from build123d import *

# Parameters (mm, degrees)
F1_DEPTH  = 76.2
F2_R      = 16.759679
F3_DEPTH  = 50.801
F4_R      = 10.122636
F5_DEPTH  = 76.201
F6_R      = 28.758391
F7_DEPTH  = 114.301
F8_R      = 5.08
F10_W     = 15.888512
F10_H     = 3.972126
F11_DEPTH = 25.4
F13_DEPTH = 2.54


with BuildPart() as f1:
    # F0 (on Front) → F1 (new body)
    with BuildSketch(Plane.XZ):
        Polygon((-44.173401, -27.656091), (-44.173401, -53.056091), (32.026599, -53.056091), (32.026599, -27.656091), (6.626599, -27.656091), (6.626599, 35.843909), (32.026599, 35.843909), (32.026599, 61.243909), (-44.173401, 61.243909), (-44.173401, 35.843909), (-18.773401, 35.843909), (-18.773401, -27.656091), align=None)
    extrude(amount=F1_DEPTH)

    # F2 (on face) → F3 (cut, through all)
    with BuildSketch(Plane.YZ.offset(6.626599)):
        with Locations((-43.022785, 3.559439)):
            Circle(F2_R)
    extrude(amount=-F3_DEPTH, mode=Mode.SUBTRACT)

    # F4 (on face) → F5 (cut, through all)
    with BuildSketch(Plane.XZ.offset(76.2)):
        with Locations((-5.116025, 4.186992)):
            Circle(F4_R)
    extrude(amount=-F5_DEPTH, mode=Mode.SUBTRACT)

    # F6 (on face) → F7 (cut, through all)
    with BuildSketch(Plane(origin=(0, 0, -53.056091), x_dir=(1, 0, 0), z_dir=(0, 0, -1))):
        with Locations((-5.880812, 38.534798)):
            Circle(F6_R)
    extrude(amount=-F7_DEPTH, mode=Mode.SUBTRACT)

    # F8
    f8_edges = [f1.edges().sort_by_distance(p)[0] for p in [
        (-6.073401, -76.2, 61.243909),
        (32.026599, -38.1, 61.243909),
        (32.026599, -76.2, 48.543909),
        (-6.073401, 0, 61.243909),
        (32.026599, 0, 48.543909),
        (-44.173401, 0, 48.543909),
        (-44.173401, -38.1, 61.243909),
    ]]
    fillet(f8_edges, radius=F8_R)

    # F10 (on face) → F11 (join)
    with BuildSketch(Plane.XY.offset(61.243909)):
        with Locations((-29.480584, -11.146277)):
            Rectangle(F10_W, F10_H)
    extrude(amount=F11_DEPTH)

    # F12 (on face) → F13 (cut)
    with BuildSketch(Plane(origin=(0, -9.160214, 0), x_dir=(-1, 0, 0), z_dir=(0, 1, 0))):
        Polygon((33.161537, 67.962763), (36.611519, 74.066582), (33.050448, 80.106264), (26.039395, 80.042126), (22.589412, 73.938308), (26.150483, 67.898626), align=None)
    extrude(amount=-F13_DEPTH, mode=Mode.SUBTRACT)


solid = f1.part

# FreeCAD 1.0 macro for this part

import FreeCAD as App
import Part
import Sketcher
from FreeCAD import Vector
Q = App.Units.Quantity


def edges_at(feature, points):
    """Names of the edges that pass closest to the given points."""
    edges = feature.Shape.Edges
    near = lambda p: min(range(len(edges)), key=lambda i: edges[i].distToShape(Part.Vertex(*p))[0])
    return sorted({f"Edge{near(p) + 1}" for p in points})

doc = App.newDocument("Part")
body = doc.addObject("PartDesign::Body", "Body")

# Sketch on XZ plane
sketch1 = body.newObject("Sketcher::SketchObject", "Sketch")
sketch1.AttachmentSupport = (doc.getObject("XZ_Plane"), [""])
sketch1.MapMode = "FlatFace"
sketch1.addGeometry(Part.LineSegment(Vector(-44.173401, -27.656091, 0), Vector(-44.173401, -53.056091, 0)), False)
sketch1.addGeometry(Part.LineSegment(Vector(-44.173401, -53.056091, 0), Vector(32.026599, -53.056091, 0)), False)
sketch1.addGeometry(Part.LineSegment(Vector(32.026599, -53.056091, 0), Vector(32.026599, -27.656091, 0)), False)
sketch1.addGeometry(Part.LineSegment(Vector(32.026599, -27.656091, 0), Vector(6.626599, -27.656091, 0)), False)
sketch1.addGeometry(Part.LineSegment(Vector(6.626599, -27.656091, 0), Vector(6.626599, 35.843909, 0)), False)
sketch1.addGeometry(Part.LineSegment(Vector(6.626599, 35.843909, 0), Vector(32.026599, 35.843909, 0)), False)
sketch1.addGeometry(Part.LineSegment(Vector(32.026599, 35.843909, 0), Vector(32.026599, 61.243909, 0)), False)
sketch1.addGeometry(Part.LineSegment(Vector(32.026599, 61.243909, 0), Vector(-44.173401, 61.243909, 0)), False)
sketch1.addGeometry(Part.LineSegment(Vector(-44.173401, 61.243909, 0), Vector(-44.173401, 35.843909, 0)), False)
sketch1.addGeometry(Part.LineSegment(Vector(-44.173401, 35.843909, 0), Vector(-18.773401, 35.843909, 0)), False)
sketch1.addGeometry(Part.LineSegment(Vector(-18.773401, 35.843909, 0), Vector(-18.773401, -27.656091, 0)), False)
sketch1.addGeometry(Part.LineSegment(Vector(-18.773401, -27.656091, 0), Vector(-44.173401, -27.656091, 0)), False)
sketch1.addConstraint(Sketcher.Constraint("Coincident", 0, 2, 1, 1))
sketch1.addConstraint(Sketcher.Constraint("Coincident", 1, 2, 2, 1))
sketch1.addConstraint(Sketcher.Constraint("Coincident", 2, 2, 3, 1))
sketch1.addConstraint(Sketcher.Constraint("Coincident", 3, 2, 4, 1))
sketch1.addConstraint(Sketcher.Constraint("Coincident", 4, 2, 5, 1))
sketch1.addConstraint(Sketcher.Constraint("Coincident", 5, 2, 6, 1))
sketch1.addConstraint(Sketcher.Constraint("Coincident", 6, 2, 7, 1))
sketch1.addConstraint(Sketcher.Constraint("Coincident", 7, 2, 8, 1))
sketch1.addConstraint(Sketcher.Constraint("Coincident", 8, 2, 9, 1))
sketch1.addConstraint(Sketcher.Constraint("Coincident", 9, 2, 10, 1))
sketch1.addConstraint(Sketcher.Constraint("Coincident", 10, 2, 11, 1))
sketch1.addConstraint(Sketcher.Constraint("Coincident", 11, 2, 0, 1))
sketch1.addConstraint(Sketcher.Constraint("Vertical", 0))
sketch1.addConstraint(Sketcher.Constraint("Horizontal", 1))
sketch1.addConstraint(Sketcher.Constraint("Vertical", 2))
sketch1.addConstraint(Sketcher.Constraint("Horizontal", 3))
sketch1.addConstraint(Sketcher.Constraint("Vertical", 4))
sketch1.addConstraint(Sketcher.Constraint("Horizontal", 5))
sketch1.addConstraint(Sketcher.Constraint("Vertical", 6))
sketch1.addConstraint(Sketcher.Constraint("Horizontal", 7))
sketch1.addConstraint(Sketcher.Constraint("Vertical", 8))
sketch1.addConstraint(Sketcher.Constraint("Horizontal", 9))
sketch1.addConstraint(Sketcher.Constraint("Vertical", 10))
sketch1.addConstraint(Sketcher.Constraint("Horizontal", 11))
sketch1.addConstraint(Sketcher.Constraint("Horizontal", 5, 2, 8, 2))
sketch1.addConstraint(Sketcher.Constraint("Horizontal", 3, 2, 10, 2))
sketch1.addConstraint(Sketcher.Constraint("Vertical", 2, 2, 5, 2))
sketch1.addConstraint(Sketcher.Constraint("Vertical", 0, 2, 7, 2))
sketch1.addConstraint(Sketcher.Constraint("Equal", 5, 9))
sketch1.addConstraint(Sketcher.Constraint("Equal", 11, 0))
sketch1.addConstraint(Sketcher.Constraint("Equal", 2, 6))
sketch1.addConstraint(Sketcher.Constraint("DistanceX", 1, 1, 1, 2, Q("3 in")))
sketch1.addConstraint(Sketcher.Constraint("DistanceX", 3, 2, 3, 1, Q("1 in")))
sketch1.addConstraint(Sketcher.Constraint("DistanceY", 4, 1, 4, 2, Q("2.5 in")))
sketch1.addConstraint(Sketcher.Constraint("DistanceX", 0, 2, -1, 1, 44.173401))
sketch1.addConstraint(Sketcher.Constraint("DistanceY", 0, 2, -1, 1, 53.056091))
pad1 = body.newObject("PartDesign::Pad", "Pad")
pad1.Profile = sketch1
pad1.Length = Q("3 in")

# Sketch on YZ plane
sketch2 = body.newObject("Sketcher::SketchObject", "Sketch001")
sketch2.AttachmentSupport = (doc.getObject("YZ_Plane"), [""])
sketch2.MapMode = "FlatFace"
sketch2.AttachmentOffset = App.Placement(Vector(0, 0, 6.626599), App.Rotation())
sketch2.addGeometry(Part.Circle(Vector(-43.022785, 3.559439, 0), Vector(0, 0, 1), 16.759679), False)
sketch2.addConstraint(Sketcher.Constraint("Diameter", 0, 33.519358))
sketch2.addConstraint(Sketcher.Constraint("DistanceY", -1, 1, 0, 3, 3.559439))
sketch2.addConstraint(Sketcher.Constraint("DistanceX", 0, 3, -1, 1, 43.022785))
pocket1 = body.newObject("PartDesign::Pocket", "Pocket")
pocket1.Profile = sketch2
pocket1.Type = "ThroughAll"

# Sketch on XZ plane
sketch3 = body.newObject("Sketcher::SketchObject", "Sketch002")
sketch3.AttachmentSupport = (doc.getObject("XZ_Plane"), [""])
sketch3.MapMode = "FlatFace"
sketch3.AttachmentOffset = App.Placement(Vector(0, 0, 3 * 25.4), App.Rotation())
sketch3.addGeometry(Part.Circle(Vector(-5.116025, 4.186992, 0), Vector(0, 0, 1), 10.122636), False)
sketch3.addConstraint(Sketcher.Constraint("Diameter", 0, 20.245272))
sketch3.addConstraint(Sketcher.Constraint("DistanceX", 0, 3, -1, 1, 5.116025))
sketch3.addConstraint(Sketcher.Constraint("DistanceY", -1, 1, 0, 3, 4.186992))
pocket2 = body.newObject("PartDesign::Pocket", "Pocket001")
pocket2.Profile = sketch3
pocket2.Type = "ThroughAll"

# Sketch on XY plane
sketch4 = body.newObject("Sketcher::SketchObject", "Sketch003")
sketch4.AttachmentSupport = (doc.getObject("XY_Plane"), [""])
sketch4.MapMode = "FlatFace"
sketch4.AttachmentOffset = App.Placement(Vector(0, 0, -53.056091), App.Rotation())
sketch4.addGeometry(Part.Circle(Vector(-5.880812, -38.534798, 0), Vector(0, 0, 1), 28.758391), False)
sketch4.addConstraint(Sketcher.Constraint("Diameter", 0, 57.516782))
sketch4.addConstraint(Sketcher.Constraint("DistanceY", 0, 3, -1, 1, 38.534798))
sketch4.addConstraint(Sketcher.Constraint("DistanceX", 0, 3, -1, 1, 5.880812))
pocket3 = body.newObject("PartDesign::Pocket", "Pocket002")
pocket3.Profile = sketch4
pocket3.Type = "ThroughAll"
pocket3.Reversed = True
doc.recompute()

fillet = body.newObject("PartDesign::Fillet", "Fillet")
fillet.Base = (pocket3, edges_at(pocket3, [
    (-6.073, -76.2, 61.244),
    (32.027, -38.1, 61.244),
    (32.027, -76.2, 48.544),
    (-6.073, 0, 61.244),
    (32.027, 0, 48.544),
    (-44.173, 0, 48.544),
    (-44.173, -38.1, 61.244),
]))
fillet.Radius = Q("0.2 in")

# Sketch on XY plane
sketch5 = body.newObject("Sketcher::SketchObject", "Sketch004")
sketch5.AttachmentSupport = (doc.getObject("XY_Plane"), [""])
sketch5.MapMode = "FlatFace"
sketch5.AttachmentOffset = App.Placement(Vector(0, 0, 61.243909), App.Rotation())
sketch5.addGeometry(Part.LineSegment(Vector(-37.42484, -9.160214, 0), Vector(-37.42484, -13.13234, 0)), False)
sketch5.addGeometry(Part.LineSegment(Vector(-37.42484, -13.13234, 0), Vector(-21.536328, -13.13234, 0)), False)
sketch5.addGeometry(Part.LineSegment(Vector(-21.536328, -13.13234, 0), Vector(-21.536328, -9.160214, 0)), False)
sketch5.addGeometry(Part.LineSegment(Vector(-21.536328, -9.160214, 0), Vector(-37.42484, -9.160214, 0)), False)
sketch5.addConstraint(Sketcher.Constraint("Coincident", 0, 2, 1, 1))
sketch5.addConstraint(Sketcher.Constraint("Coincident", 1, 2, 2, 1))
sketch5.addConstraint(Sketcher.Constraint("Coincident", 2, 2, 3, 1))
sketch5.addConstraint(Sketcher.Constraint("Coincident", 3, 2, 0, 1))
sketch5.addConstraint(Sketcher.Constraint("Vertical", 0))
sketch5.addConstraint(Sketcher.Constraint("Horizontal", 1))
sketch5.addConstraint(Sketcher.Constraint("Vertical", 2))
sketch5.addConstraint(Sketcher.Constraint("Horizontal", 3))
sketch5.addConstraint(Sketcher.Constraint("DistanceX", 1, 1, 1, 2, 15.888512))
sketch5.addConstraint(Sketcher.Constraint("DistanceY", 0, 2, 0, 1, 3.972126))
sketch5.addConstraint(Sketcher.Constraint("DistanceX", 0, 2, -1, 1, 37.42484))
sketch5.addConstraint(Sketcher.Constraint("DistanceY", 0, 2, -1, 1, 13.13234))
pad2 = body.newObject("PartDesign::Pad", "Pad001")
pad2.Profile = sketch5
pad2.Length = Q("1 in")

# Sketch on XZ plane
sketch6 = body.newObject("Sketcher::SketchObject", "Sketch005")
sketch6.AttachmentSupport = (doc.getObject("XZ_Plane"), [""])
sketch6.MapMode = "FlatFace"
sketch6.AttachmentOffset = App.Placement(Vector(0, 0, 9.160214), App.Rotation())
sketch6.addGeometry(Part.LineSegment(Vector(-33.161537, 67.962763, 0), Vector(-36.611519, 74.066582, 0)), False)
sketch6.addGeometry(Part.LineSegment(Vector(-36.611519, 74.066582, 0), Vector(-33.050448, 80.106264, 0)), False)
sketch6.addGeometry(Part.LineSegment(Vector(-33.050448, 80.106264, 0), Vector(-26.039395, 80.042126, 0)), False)
sketch6.addGeometry(Part.LineSegment(Vector(-26.039395, 80.042126, 0), Vector(-22.589412, 73.938308, 0)), False)
sketch6.addGeometry(Part.LineSegment(Vector(-22.589412, 73.938308, 0), Vector(-26.150483, 67.898626, 0)), False)
sketch6.addGeometry(Part.LineSegment(Vector(-26.150483, 67.898626, 0), Vector(-33.161537, 67.962763, 0)), False)
sketch6.addConstraint(Sketcher.Constraint("Coincident", 0, 2, 1, 1))
sketch6.addConstraint(Sketcher.Constraint("Coincident", 1, 2, 2, 1))
sketch6.addConstraint(Sketcher.Constraint("Coincident", 2, 2, 3, 1))
sketch6.addConstraint(Sketcher.Constraint("Coincident", 3, 2, 4, 1))
sketch6.addConstraint(Sketcher.Constraint("Coincident", 4, 2, 5, 1))
sketch6.addConstraint(Sketcher.Constraint("Coincident", 5, 2, 0, 1))
sketch6.addConstraint(Sketcher.Constraint("Parallel", 0, 3))
sketch6.addConstraint(Sketcher.Constraint("Parallel", 1, 4))
sketch6.addConstraint(Sketcher.Constraint("Parallel", 2, 5))
sketch6.addConstraint(Sketcher.Constraint("Equal", 0, 1))
sketch6.addConstraint(Sketcher.Constraint("Equal", 1, 2))
sketch6.addConstraint(Sketcher.Constraint("Equal", 2, 3))
sketch6.addConstraint(Sketcher.Constraint("DistanceY", 4, 2, 2, 2, 12.1435))
sketch6.addConstraint(Sketcher.Constraint("DistanceX", 0, 2, -1, 1, 36.611519))
sketch6.addConstraint(Sketcher.Constraint("DistanceY", -1, 1, 0, 2, 74.066582))
sketch6.addConstraint(Sketcher.Constraint("DistanceX", 1, 2, -1, 1, 33.050448))
sketch6.addConstraint(Sketcher.Constraint("DistanceX", 3, 2, -1, 1, 22.589412))
sketch6.addConstraint(Sketcher.Constraint("DistanceY", -1, 1, 3, 2, 73.938308))
pocket4 = body.newObject("PartDesign::Pocket", "Pocket003")
pocket4.Profile = sketch6
pocket4.Length = Q("0.1 in")
pocket4.Reversed = True

doc.recompute()
